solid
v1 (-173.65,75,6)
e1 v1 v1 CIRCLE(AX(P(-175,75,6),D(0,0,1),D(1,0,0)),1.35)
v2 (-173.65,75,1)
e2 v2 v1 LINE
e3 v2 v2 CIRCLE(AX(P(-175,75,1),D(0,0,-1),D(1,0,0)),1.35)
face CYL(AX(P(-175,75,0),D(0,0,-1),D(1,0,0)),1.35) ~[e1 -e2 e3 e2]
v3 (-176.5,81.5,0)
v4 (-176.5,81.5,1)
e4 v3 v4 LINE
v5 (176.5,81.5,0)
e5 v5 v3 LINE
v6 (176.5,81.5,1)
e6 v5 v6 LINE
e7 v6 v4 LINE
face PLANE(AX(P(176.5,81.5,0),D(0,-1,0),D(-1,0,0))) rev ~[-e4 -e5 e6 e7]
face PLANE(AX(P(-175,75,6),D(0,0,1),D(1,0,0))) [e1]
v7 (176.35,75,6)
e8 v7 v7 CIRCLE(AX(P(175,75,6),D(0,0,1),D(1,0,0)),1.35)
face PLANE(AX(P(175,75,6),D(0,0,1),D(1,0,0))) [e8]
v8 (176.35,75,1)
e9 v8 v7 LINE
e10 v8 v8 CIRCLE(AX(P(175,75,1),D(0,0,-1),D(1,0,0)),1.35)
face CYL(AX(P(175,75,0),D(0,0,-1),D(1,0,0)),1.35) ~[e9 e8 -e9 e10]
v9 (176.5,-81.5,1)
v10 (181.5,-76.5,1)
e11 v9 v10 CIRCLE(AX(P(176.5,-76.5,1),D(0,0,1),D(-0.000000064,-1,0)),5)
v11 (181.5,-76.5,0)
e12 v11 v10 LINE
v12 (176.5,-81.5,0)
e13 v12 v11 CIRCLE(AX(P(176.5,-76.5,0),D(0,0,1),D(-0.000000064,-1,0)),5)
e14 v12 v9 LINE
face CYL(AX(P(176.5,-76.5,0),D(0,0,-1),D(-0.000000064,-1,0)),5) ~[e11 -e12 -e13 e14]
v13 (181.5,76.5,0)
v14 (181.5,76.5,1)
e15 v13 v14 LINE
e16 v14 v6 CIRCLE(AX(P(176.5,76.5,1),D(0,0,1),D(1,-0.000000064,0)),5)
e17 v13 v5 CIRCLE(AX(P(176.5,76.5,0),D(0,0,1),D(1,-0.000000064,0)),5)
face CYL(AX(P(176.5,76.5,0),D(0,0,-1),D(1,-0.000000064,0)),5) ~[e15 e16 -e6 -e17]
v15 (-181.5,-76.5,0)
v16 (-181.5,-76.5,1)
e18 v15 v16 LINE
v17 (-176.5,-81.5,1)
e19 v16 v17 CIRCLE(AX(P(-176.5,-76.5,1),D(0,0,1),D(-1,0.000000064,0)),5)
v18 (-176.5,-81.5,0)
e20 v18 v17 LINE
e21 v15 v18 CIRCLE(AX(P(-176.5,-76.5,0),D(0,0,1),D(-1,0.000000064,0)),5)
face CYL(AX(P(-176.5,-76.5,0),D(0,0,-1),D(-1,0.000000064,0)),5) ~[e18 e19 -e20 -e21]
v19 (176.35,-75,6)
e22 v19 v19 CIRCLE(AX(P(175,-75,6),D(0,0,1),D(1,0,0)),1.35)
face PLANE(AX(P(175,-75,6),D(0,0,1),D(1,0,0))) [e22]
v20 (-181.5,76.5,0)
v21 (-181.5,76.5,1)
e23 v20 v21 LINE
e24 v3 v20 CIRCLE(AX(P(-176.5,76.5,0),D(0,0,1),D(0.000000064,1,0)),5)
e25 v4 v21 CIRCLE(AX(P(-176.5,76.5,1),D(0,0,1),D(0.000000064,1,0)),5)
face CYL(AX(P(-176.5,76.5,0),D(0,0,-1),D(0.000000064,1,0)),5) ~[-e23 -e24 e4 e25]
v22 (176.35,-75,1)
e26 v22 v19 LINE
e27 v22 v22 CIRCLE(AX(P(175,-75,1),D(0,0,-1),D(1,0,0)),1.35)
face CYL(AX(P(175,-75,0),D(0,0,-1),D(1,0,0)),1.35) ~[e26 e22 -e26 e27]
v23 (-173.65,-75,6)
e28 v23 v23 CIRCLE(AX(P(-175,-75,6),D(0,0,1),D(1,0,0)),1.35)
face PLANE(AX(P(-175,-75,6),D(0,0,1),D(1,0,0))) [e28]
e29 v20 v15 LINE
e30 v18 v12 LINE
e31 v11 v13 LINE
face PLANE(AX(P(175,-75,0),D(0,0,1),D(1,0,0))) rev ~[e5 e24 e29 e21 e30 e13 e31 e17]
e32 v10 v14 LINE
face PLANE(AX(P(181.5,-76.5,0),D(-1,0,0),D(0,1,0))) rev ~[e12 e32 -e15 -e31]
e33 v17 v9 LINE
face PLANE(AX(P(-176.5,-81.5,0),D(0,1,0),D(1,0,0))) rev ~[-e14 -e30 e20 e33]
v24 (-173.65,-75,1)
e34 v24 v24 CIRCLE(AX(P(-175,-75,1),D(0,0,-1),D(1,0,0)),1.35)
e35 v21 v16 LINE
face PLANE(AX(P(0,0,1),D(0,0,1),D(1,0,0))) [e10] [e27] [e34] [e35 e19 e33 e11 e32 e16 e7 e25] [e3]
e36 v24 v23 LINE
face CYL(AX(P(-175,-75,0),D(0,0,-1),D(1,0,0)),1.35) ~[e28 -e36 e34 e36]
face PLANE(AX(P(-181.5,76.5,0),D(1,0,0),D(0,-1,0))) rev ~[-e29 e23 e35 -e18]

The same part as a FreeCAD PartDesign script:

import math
import FreeCAD as App
import Part
import Sketcher
Q = App.Units.Quantity

doc = App.newDocument("Part")
body = doc.addObject("PartDesign::Body", "Body")

# Sketch on XY plane
sketch1 = body.newObject("Sketcher::SketchObject", "Sketch")
sketch1.AttachmentSupport = (doc.getObject("XY_Plane"), [""])
sketch1.MapMode = "FlatFace"
sketch1.addGeometry(Part.LineSegment(App.Vector(-181.5, 76.5, 0), App.Vector(-181.5, -76.5, 0)), False)
sketch1.addGeometry(Part.ArcOfCircle(Part.Circle(App.Vector(-176.5, -76.5, 0), App.Vector(0, 0, 1), 5), math.radians(180), math.radians(270)), False)
sketch1.addGeometry(Part.LineSegment(App.Vector(-176.5, -81.5, 0), App.Vector(176.5, -81.5, 0)), False)
sketch1.addGeometry(Part.ArcOfCircle(Part.Circle(App.Vector(176.5, -76.5, 0), App.Vector(0, 0, 1), 5), math.radians(-90), math.radians(0)), False)
sketch1.addGeometry(Part.LineSegment(App.Vector(181.5, -76.5, 0), App.Vector(181.5, 76.5, 0)), False)
sketch1.addGeometry(Part.ArcOfCircle(Part.Circle(App.Vector(176.5, 76.5, 0), App.Vector(0, 0, 1), 5), math.radians(0), math.radians(90)), False)
sketch1.addGeometry(Part.LineSegment(App.Vector(176.5, 81.5, 0), App.Vector(-176.5, 81.5, 0)), False)
sketch1.addGeometry(Part.ArcOfCircle(Part.Circle(App.Vector(-176.5, 76.5, 0), App.Vector(0, 0, 1), 5), math.radians(90), math.radians(180)), False)
sketch1.addConstraint(Sketcher.Constraint("Tangent", 0, 2, 1, 1))
sketch1.addConstraint(Sketcher.Constraint("Tangent", 1, 2, 2, 1))
sketch1.addConstraint(Sketcher.Constraint("Tangent", 2, 2, 3, 1))
sketch1.addConstraint(Sketcher.Constraint("Tangent", 3, 2, 4, 1))
sketch1.addConstraint(Sketcher.Constraint("Tangent", 4, 2, 5, 1))
sketch1.addConstraint(Sketcher.Constraint("Tangent", 5, 2, 6, 1))
sketch1.addConstraint(Sketcher.Constraint("Tangent", 6, 2, 7, 1))
sketch1.addConstraint(Sketcher.Constraint("Tangent", 7, 2, 0, 1))
sketch1.addConstraint(Sketcher.Constraint("Vertical", 0))
sketch1.addConstraint(Sketcher.Constraint("Horizontal", 2))
sketch1.addConstraint(Sketcher.Constraint("Vertical", 4))
sketch1.addConstraint(Sketcher.Constraint("Horizontal", 6))
sketch1.addConstraint(Sketcher.Constraint("Equal", 1, 3))
sketch1.addConstraint(Sketcher.Constraint("Equal", 3, 5))
sketch1.addConstraint(Sketcher.Constraint("Equal", 5, 7))
sketch1.addConstraint(Sketcher.Constraint("Symmetric", 1, 3, 5, 3, -1, 1))
sketch1.addConstraint(Sketcher.Constraint("Radius", 1, Q("5 mm")))
sketch1.addConstraint(Sketcher.Constraint("DistanceX", 2, 1, 2, 2, Q("353 mm")))
sketch1.addConstraint(Sketcher.Constraint("DistanceY", 0, 2, 0, 1, Q("153 mm")))
pad1 = body.newObject("PartDesign::Pad", "Pad")
pad1.Profile = sketch1
pad1.Length = 1

# Sketch on XY plane
sketch2 = body.newObject("Sketcher::SketchObject", "Sketch001")
sketch2.AttachmentSupport = (doc.getObject("XY_Plane"), [""])
sketch2.MapMode = "FlatFace"
sketch2.addGeometry(Part.Circle(App.Vector(-175, 75, 0), App.Vector(0, 0, 1), 1.4), False)
sketch2.addConstraint(Sketcher.Constraint("Diameter", 0, Q("2.7 mm")))
sketch2.addConstraint(Sketcher.Constraint("DistanceX", 0, 3, -1, 1, Q("175 mm")))
sketch2.addConstraint(Sketcher.Constraint("DistanceY", -1, 1, 0, 3, Q("75 mm")))
pad2 = body.newObject("PartDesign::Pad", "Pad001")
pad2.Profile = sketch2
pad2.Length = 6

# Sketch on XY plane
sketch3 = body.newObject("Sketcher::SketchObject", "Sketch002")
sketch3.AttachmentSupport = (doc.getObject("XY_Plane"), [""])
sketch3.MapMode = "FlatFace"
sketch3.addGeometry(Part.Circle(App.Vector(175, 75, 0), App.Vector(0, 0, 1), 1.4), False)
sketch3.addConstraint(Sketcher.Constraint("Diameter", 0, Q("2.7 mm")))
sketch3.addConstraint(Sketcher.Constraint("DistanceX", -1, 1, 0, 3, Q("175 mm")))
sketch3.addConstraint(Sketcher.Constraint("DistanceY", -1, 1, 0, 3, Q("75 mm")))
pad3 = body.newObject("PartDesign::Pad", "Pad002")
pad3.Profile = sketch3
pad3.Length = 6

# Sketch on XY plane
sketch4 = body.newObject("Sketcher::SketchObject", "Sketch003")
sketch4.AttachmentSupport = (doc.getObject("XY_Plane"), [""])
sketch4.MapMode = "FlatFace"
sketch4.addGeometry(Part.Circle(App.Vector(-175, -75, 0), App.Vector(0, 0, 1), 1.4), False)
sketch4.addConstraint(Sketcher.Constraint("Diameter", 0, Q("2.7 mm")))
sketch4.addConstraint(Sketcher.Constraint("DistanceX", 0, 3, -1, 1, Q("175 mm")))
sketch4.addConstraint(Sketcher.Constraint("DistanceY", 0, 3, -1, 1, Q("75 mm")))
pad4 = body.newObject("PartDesign::Pad", "Pad003")
pad4.Profile = sketch4
pad4.Length = 6

# Sketch on XY plane
sketch5 = body.newObject("Sketcher::SketchObject", "Sketch004")
sketch5.AttachmentSupport = (doc.getObject("XY_Plane"), [""])
sketch5.MapMode = "FlatFace"
sketch5.addGeometry(Part.Circle(App.Vector(175, -75, 0), App.Vector(0, 0, 1), 1.4), False)
sketch5.addConstraint(Sketcher.Constraint("Diameter", 0, Q("2.7 mm")))
sketch5.addConstraint(Sketcher.Constraint("DistanceX", -1, 1, 0, 3, Q("175 mm")))
sketch5.addConstraint(Sketcher.Constraint("DistanceY", 0, 3, -1, 1, Q("75 mm")))
pad5 = body.newObject("PartDesign::Pad", "Pad004")
pad5.Profile = sketch5
pad5.Length = 6

doc.recompute()
